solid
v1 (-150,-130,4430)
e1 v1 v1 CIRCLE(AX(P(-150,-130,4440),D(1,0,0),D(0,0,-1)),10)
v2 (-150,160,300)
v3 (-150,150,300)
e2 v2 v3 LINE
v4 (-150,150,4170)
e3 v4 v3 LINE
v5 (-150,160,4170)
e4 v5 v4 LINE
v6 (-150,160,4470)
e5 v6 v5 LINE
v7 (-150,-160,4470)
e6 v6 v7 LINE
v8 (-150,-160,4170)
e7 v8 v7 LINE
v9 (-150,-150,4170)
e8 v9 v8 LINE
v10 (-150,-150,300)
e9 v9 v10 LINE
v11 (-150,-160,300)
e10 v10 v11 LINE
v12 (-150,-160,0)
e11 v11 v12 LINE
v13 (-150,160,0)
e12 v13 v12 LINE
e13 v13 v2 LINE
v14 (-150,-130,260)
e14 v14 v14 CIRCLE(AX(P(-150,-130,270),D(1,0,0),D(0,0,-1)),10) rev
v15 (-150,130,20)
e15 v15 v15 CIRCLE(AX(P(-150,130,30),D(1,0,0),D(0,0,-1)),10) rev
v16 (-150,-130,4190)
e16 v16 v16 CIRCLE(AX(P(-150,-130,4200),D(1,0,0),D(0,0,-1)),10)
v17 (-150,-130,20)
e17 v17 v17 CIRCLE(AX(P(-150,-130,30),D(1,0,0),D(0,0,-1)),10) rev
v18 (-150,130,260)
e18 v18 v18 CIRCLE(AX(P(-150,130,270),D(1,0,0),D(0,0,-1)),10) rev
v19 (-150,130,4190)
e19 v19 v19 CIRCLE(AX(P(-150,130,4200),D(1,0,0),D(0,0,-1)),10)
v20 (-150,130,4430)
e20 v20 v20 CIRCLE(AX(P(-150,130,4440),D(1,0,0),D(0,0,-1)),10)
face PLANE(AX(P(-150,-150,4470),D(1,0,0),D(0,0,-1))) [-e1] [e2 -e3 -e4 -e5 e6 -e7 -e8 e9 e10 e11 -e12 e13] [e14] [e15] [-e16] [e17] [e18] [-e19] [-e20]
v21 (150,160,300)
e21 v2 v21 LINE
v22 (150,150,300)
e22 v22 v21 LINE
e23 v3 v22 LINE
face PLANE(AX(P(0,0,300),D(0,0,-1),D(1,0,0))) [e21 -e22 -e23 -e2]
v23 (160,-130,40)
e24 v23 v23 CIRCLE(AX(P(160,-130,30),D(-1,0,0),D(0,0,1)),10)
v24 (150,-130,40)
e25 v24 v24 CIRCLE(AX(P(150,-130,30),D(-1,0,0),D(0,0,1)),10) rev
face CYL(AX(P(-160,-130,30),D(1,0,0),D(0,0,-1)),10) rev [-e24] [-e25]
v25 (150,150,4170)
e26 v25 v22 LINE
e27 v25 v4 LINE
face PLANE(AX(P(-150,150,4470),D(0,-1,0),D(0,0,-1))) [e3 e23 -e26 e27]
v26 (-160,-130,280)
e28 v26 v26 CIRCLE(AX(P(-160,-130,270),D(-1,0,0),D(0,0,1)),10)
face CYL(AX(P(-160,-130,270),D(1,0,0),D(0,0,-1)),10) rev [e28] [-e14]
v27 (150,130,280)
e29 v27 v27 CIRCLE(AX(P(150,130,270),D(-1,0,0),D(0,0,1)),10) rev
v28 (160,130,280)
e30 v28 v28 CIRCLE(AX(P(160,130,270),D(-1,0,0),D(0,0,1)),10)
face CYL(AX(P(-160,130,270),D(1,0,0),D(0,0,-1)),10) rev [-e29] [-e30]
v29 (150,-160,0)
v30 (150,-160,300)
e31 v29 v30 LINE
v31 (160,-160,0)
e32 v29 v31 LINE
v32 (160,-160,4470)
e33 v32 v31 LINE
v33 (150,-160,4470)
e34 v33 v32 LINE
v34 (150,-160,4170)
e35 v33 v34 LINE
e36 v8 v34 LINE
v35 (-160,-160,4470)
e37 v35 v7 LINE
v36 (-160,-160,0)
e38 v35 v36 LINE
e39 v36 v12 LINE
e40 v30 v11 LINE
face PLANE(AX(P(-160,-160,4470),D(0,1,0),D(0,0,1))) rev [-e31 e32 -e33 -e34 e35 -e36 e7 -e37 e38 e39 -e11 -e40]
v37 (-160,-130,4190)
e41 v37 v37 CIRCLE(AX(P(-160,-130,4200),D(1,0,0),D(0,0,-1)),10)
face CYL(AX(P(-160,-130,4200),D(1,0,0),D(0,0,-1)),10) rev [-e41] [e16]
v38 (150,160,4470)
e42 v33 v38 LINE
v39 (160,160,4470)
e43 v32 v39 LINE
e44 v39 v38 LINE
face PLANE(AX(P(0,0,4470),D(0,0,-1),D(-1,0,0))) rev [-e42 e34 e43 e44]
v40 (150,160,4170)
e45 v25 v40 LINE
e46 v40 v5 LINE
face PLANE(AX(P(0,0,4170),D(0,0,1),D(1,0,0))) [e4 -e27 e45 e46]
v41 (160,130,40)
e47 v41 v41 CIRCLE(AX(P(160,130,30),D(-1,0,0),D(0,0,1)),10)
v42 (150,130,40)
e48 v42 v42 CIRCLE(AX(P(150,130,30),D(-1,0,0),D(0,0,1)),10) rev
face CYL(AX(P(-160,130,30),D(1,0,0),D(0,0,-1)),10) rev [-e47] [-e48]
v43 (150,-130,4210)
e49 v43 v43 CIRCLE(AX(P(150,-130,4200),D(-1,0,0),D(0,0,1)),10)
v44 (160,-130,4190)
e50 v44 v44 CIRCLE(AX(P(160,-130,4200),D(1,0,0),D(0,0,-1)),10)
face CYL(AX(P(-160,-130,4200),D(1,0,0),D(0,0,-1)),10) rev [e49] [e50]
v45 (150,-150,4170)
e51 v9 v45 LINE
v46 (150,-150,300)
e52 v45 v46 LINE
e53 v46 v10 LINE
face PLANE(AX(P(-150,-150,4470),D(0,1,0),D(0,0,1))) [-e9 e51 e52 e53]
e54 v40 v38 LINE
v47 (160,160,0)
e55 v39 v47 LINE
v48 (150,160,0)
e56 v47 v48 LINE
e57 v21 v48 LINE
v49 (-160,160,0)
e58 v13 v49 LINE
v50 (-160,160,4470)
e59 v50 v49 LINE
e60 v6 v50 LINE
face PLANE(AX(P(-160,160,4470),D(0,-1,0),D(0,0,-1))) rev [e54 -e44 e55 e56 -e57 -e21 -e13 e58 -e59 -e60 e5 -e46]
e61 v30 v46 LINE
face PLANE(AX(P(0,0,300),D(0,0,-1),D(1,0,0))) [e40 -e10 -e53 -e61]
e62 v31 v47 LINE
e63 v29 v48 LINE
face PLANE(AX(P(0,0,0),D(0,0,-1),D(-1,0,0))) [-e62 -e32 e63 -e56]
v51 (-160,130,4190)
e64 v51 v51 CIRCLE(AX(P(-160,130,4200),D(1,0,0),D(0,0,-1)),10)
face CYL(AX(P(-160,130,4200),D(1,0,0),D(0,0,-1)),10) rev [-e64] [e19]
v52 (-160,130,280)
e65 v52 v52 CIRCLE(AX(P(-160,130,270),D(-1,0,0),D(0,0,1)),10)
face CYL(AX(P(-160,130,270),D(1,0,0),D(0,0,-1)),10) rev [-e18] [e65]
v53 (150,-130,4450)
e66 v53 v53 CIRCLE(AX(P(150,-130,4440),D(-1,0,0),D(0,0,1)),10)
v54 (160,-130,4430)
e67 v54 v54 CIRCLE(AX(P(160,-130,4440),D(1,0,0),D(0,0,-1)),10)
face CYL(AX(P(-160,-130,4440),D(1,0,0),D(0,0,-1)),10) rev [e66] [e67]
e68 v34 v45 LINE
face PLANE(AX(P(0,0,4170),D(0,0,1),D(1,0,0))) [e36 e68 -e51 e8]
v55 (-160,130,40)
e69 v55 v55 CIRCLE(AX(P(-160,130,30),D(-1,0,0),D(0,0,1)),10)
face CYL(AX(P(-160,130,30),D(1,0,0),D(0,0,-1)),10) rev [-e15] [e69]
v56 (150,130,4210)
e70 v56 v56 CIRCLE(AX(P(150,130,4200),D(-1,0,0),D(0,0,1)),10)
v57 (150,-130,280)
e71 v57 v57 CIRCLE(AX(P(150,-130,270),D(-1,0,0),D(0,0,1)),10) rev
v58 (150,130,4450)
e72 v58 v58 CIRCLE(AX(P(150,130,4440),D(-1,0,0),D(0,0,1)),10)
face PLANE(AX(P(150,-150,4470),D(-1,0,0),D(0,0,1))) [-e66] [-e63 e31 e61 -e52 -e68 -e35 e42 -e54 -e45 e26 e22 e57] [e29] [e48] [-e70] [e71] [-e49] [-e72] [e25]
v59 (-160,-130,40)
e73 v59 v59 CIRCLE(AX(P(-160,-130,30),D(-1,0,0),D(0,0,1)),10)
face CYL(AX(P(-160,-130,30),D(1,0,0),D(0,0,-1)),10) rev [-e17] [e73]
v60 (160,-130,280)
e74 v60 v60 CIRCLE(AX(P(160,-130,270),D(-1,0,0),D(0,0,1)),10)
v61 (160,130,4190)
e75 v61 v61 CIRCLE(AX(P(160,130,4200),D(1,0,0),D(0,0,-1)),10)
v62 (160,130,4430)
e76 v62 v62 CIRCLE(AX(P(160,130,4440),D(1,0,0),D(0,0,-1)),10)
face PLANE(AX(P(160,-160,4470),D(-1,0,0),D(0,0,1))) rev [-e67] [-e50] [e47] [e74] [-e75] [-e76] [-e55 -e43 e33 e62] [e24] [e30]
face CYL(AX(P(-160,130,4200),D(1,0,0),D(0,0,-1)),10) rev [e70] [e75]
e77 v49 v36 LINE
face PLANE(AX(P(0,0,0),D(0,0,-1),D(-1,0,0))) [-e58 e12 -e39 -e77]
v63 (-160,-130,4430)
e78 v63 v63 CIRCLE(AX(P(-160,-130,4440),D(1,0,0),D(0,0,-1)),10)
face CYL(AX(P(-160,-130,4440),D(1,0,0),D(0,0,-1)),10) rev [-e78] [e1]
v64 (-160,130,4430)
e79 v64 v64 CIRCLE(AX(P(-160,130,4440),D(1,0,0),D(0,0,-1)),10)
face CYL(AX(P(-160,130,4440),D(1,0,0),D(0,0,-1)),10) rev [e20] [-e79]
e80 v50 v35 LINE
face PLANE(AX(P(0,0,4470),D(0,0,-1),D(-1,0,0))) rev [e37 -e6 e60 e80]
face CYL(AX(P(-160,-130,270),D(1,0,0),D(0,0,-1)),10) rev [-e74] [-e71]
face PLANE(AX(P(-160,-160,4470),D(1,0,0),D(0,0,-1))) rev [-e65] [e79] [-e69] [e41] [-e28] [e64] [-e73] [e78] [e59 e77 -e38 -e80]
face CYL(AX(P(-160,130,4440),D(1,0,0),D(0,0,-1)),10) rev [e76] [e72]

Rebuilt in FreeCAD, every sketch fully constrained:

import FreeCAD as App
import Part
import Sketcher
from FreeCAD import Vector

doc = App.newDocument("Part")
body = doc.addObject("PartDesign::Body", "Body")

# Sketch on XY plane
sketch1 = doc.addObject("Sketcher::SketchObject", "Sketch")
body.addObject(sketch1)
sketch1.AttachmentSupport = (doc.XY_Plane, [""])
sketch1.MapMode = "FlatFace"
sketch1.addGeometry([
    Part.LineSegment(Vector(-160, 160, 0), Vector(-160, -160, 0)),  # 0
    Part.LineSegment(Vector(-160, -160, 0), Vector(160, -160, 0)),  # 1
    Part.LineSegment(Vector(160, -160, 0), Vector(160, 160, 0)),  # 2
    Part.LineSegment(Vector(160, 160, 0), Vector(-160, 160, 0)),  # 3
    Part.LineSegment(Vector(150, -150, 0), Vector(-150, -150, 0)),  # 4
    Part.LineSegment(Vector(-150, -150, 0), Vector(-150, 150, 0)),  # 5
    Part.LineSegment(Vector(-150, 150, 0), Vector(150, 150, 0)),  # 6
    Part.LineSegment(Vector(150, 150, 0), Vector(150, -150, 0)),  # 7
], False)
sketch1.addConstraint([
    Sketcher.Constraint("Coincident", 0, 2, 1, 1),
    Sketcher.Constraint("Coincident", 1, 2, 2, 1),
    Sketcher.Constraint("Coincident", 2, 2, 3, 1),
    Sketcher.Constraint("Coincident", 3, 2, 0, 1),
    Sketcher.Constraint("Coincident", 4, 2, 5, 1),
    Sketcher.Constraint("Coincident", 5, 2, 6, 1),
    Sketcher.Constraint("Coincident", 6, 2, 7, 1),
    Sketcher.Constraint("Coincident", 7, 2, 4, 1),
    Sketcher.Constraint("Vertical", 0),
    Sketcher.Constraint("Horizontal", 1),
    Sketcher.Constraint("Vertical", 2),
    Sketcher.Constraint("Horizontal", 3),
    Sketcher.Constraint("Horizontal", 4),
    Sketcher.Constraint("Vertical", 5),
    Sketcher.Constraint("Horizontal", 6),
    Sketcher.Constraint("Vertical", 7),
    Sketcher.Constraint("Symmetric", 0, 2, 2, 2, -1, 1),
    Sketcher.Constraint("Symmetric", 4, 2, 6, 2, -1, 1),
    Sketcher.Constraint("Equal", 3, 0),
    Sketcher.Constraint("Equal", 6, 5),
    Sketcher.Constraint("DistanceX", 1, 1, 1, 2, 320.0),
    Sketcher.Constraint("DistanceX", 4, 2, 4, 1, 300.0),
])
pad1 = doc.addObject("PartDesign::Pad", "Pad")
body.addObject(pad1)
pad1.Profile = sketch1
pad1.Length = 4470

# Sketch on XY plane
sketch2 = doc.addObject("Sketcher::SketchObject", "Sketch001")
body.addObject(sketch2)
sketch2.AttachmentSupport = (doc.XY_Plane, [""])
sketch2.MapMode = "FlatFace"
sketch2.AttachmentOffset = App.Placement(Vector(0, 0, 4470), App.Rotation())
sketch2.addGeometry([
    Part.LineSegment(Vector(-150, 185, 0), Vector(-150, -185, 0)),
    Part.LineSegment(Vector(-150, -185, 0), Vector(150, -185, 0)),
    Part.LineSegment(Vector(150, -185, 0), Vector(150, 185, 0)),
    Part.LineSegment(Vector(150, 185, 0), Vector(-150, 185, 0)),
], False)
sketch2.addConstraint([
    Sketcher.Constraint("Coincident", 0, 2, 1, 1),
    Sketcher.Constraint("Coincident", 1, 2, 2, 1),
    Sketcher.Constraint("Coincident", 2, 2, 3, 1),
    Sketcher.Constraint("Coincident", 3, 2, 0, 1),
    Sketcher.Constraint("Vertical", 0),
    Sketcher.Constraint("Horizontal", 1),
    Sketcher.Constraint("Vertical", 2),
    Sketcher.Constraint("Horizontal", 3),
    Sketcher.Constraint("Symmetric", 0, 2, 2, 2, -1, 1),
    Sketcher.Constraint("DistanceX", 1, 1, 1, 2, 300.0),
    Sketcher.Constraint("DistanceY", 0, 2, 0, 1, 369.066375),
])
pocket1 = doc.addObject("PartDesign::Pocket", "Pocket")
body.addObject(pocket1)
pocket1.Profile = sketch2
pocket1.Length = 300

# Sketch on YZ plane
sketch3 = doc.addObject("Sketcher::SketchObject", "Sketch002")
body.addObject(sketch3)
sketch3.AttachmentSupport = (doc.YZ_Plane, [""])
sketch3.MapMode = "FlatFace"
sketch3.AttachmentOffset = App.Placement(Vector(0, 0, 160), App.Rotation())
sketch3.addGeometry([
    Part.Circle(Vector(130, 4440, 0), Vector(0, 0, 1), 10),
    Part.Circle(Vector(130, 4200, 0), Vector(0, 0, 1), 10),
    Part.Circle(Vector(-130, 4200, 0), Vector(0, 0, 1), 10),
    Part.Circle(Vector(-130, 4440, 0), Vector(0, 0, 1), 10),
], False)
sketch3.addConstraint([
    Sketcher.Constraint("Equal", 0, 1),
    Sketcher.Constraint("Equal", 1, 2),
    Sketcher.Constraint("Equal", 2, 3),
    Sketcher.Constraint("Symmetric", 1, 3, 2, 3, -2),
    Sketcher.Constraint("Symmetric", 0, 3, 3, 3, -2),
    Sketcher.Constraint("Vertical", 0, 3, 1, 3),
    Sketcher.Constraint("Diameter", 0, 20.0),
    Sketcher.Constraint("DistanceX", -1, 1, 0, 3, 130.0),
    Sketcher.Constraint("DistanceY", -1, 1, 0, 3, 4440.0),
    Sketcher.Constraint("DistanceY", -1, 1, 1, 3, 4200.0),
])
pocket2 = doc.addObject("PartDesign::Pocket", "Pocket001")
body.addObject(pocket2)
pocket2.Profile = sketch3
pocket2.Type = "ThroughAll"
doc.recompute()

datumplane = doc.addObject("PartDesign::Plane", "DatumPlane")
body.addObject(datumplane)
datumplane.AttachmentSupport = (doc.XY_Plane, [""])
datumplane.MapMode = "FlatFace"
datumplane.AttachmentOffset = App.Placement(Vector(0, 0, 2235), App.Rotation())
mirrored = doc.addObject("PartDesign::Mirrored", "Mirrored")
body.addObject(mirrored)
mirrored.Originals = [pocket1, pocket2]
mirrored.MirrorPlane = (datumplane, [""])
body.Tip = mirrored

doc.recompute()
